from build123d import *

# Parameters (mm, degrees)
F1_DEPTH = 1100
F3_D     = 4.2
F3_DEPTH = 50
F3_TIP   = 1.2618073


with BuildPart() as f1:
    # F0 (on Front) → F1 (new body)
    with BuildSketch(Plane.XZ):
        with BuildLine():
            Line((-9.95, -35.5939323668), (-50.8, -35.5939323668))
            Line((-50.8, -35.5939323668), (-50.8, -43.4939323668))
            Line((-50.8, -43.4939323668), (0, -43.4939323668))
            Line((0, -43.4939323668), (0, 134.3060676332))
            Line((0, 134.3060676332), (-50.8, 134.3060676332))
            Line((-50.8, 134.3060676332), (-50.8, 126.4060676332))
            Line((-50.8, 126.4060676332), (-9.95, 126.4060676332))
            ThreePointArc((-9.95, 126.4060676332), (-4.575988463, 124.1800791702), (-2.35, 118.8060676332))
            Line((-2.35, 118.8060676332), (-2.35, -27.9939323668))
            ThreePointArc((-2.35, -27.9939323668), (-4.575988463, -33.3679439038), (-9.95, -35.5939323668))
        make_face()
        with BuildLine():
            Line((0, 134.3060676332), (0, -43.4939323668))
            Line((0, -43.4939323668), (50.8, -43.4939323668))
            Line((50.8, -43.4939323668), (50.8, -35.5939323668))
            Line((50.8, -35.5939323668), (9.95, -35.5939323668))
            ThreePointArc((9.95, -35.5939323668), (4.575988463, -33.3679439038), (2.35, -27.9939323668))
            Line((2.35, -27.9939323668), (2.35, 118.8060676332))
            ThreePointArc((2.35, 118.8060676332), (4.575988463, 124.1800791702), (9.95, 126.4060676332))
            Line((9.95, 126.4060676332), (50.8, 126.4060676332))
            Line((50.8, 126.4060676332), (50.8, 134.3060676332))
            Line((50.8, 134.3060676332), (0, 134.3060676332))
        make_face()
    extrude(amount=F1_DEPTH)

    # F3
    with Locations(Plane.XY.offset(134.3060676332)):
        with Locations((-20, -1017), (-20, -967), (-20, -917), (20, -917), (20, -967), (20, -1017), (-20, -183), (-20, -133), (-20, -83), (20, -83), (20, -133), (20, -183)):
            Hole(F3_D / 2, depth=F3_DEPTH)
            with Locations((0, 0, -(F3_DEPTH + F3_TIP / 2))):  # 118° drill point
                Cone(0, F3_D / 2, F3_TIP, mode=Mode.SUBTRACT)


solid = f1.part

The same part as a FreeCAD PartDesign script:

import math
import FreeCAD as App
import Part
import Sketcher
from FreeCAD import Vector
Q = App.Units.Quantity

doc = App.newDocument("Part")
body = doc.addObject("PartDesign::Body", "Body")

# Sketch on XZ plane
sketch1 = body.newObject("Sketcher::SketchObject", "Sketch")
sketch1.AttachmentSupport = (doc.getObject("XZ_Plane"), [""])
sketch1.MapMode = "FlatFace"
sketch1.addGeometry(Part.LineSegment(Vector(-10, -36, 0), Vector(-51, -36, 0)), False)
sketch1.addGeometry(Part.LineSegment(Vector(-51, -36, 0), Vector(-51, -43, 0)), False)
sketch1.addGeometry(Part.LineSegment(Vector(-51, -43, 0), Vector(51, -43, 0)), False)
sketch1.addGeometry(Part.LineSegment(Vector(51, -43, 0), Vector(51, -36, 0)), False)
sketch1.addGeometry(Part.LineSegment(Vector(51, -36, 0), Vector(10, -36, 0)), False)
sketch1.addGeometry(Part.ArcOfCircle(Part.Circle(Vector(10, -28, 0), Vector(0, 0, 1), 8), math.radians(180), math.radians(270)), False)
sketch1.addGeometry(Part.LineSegment(Vector(2, -28, 0), Vector(2, 119, 0)), False)
sketch1.addGeometry(Part.ArcOfCircle(Part.Circle(Vector(10, 119, 0), Vector(0, 0, 1), 8), math.radians(90), math.radians(180)), False)
sketch1.addGeometry(Part.LineSegment(Vector(10, 126, 0), Vector(51, 126, 0)), False)
sketch1.addGeometry(Part.LineSegment(Vector(51, 126, 0), Vector(51, 134, 0)), False)
sketch1.addGeometry(Part.LineSegment(Vector(51, 134, 0), Vector(-51, 134, 0)), False)
sketch1.addGeometry(Part.LineSegment(Vector(-51, 134, 0), Vector(-51, 126, 0)), False)
sketch1.addGeometry(Part.LineSegment(Vector(-51, 126, 0), Vector(-10, 126, 0)), False)
sketch1.addGeometry(Part.ArcOfCircle(Part.Circle(Vector(-10, 119, 0), Vector(0, 0, 1), 8), math.radians(0), math.radians(90)), False)
sketch1.addGeometry(Part.LineSegment(Vector(-2, 119, 0), Vector(-2, -28, 0)), False)
sketch1.addGeometry(Part.ArcOfCircle(Part.Circle(Vector(-10, -28, 0), Vector(0, 0, 1), 8), math.radians(-90), math.radians(0)), False)
sketch1.addConstraint(Sketcher.Constraint("Coincident", 0, 2, 1, 1))
sketch1.addConstraint(Sketcher.Constraint("Coincident", 1, 2, 2, 1))
sketch1.addConstraint(Sketcher.Constraint("Coincident", 2, 2, 3, 1))
sketch1.addConstraint(Sketcher.Constraint("Coincident", 3, 2, 4, 1))
sketch1.addConstraint(Sketcher.Constraint("Tangent", 4, 2, 5, 2))
sketch1.addConstraint(Sketcher.Constraint("Tangent", 5, 1, 6, 1))
sketch1.addConstraint(Sketcher.Constraint("Tangent", 6, 2, 7, 2))
sketch1.addConstraint(Sketcher.Constraint("Tangent", 7, 1, 8, 1))
sketch1.addConstraint(Sketcher.Constraint("Coincident", 8, 2, 9, 1))
sketch1.addConstraint(Sketcher.Constraint("Coincident", 9, 2, 10, 1))
sketch1.addConstraint(Sketcher.Constraint("Coincident", 10, 2, 11, 1))
sketch1.addConstraint(Sketcher.Constraint("Coincident", 11, 2, 12, 1))
sketch1.addConstraint(Sketcher.Constraint("Tangent", 12, 2, 13, 2))
sketch1.addConstraint(Sketcher.Constraint("Tangent", 13, 1, 14, 1))
sketch1.addConstraint(Sketcher.Constraint("Tangent", 14, 2, 15, 2))
sketch1.addConstraint(Sketcher.Constraint("Tangent", 15, 1, 0, 1))
sketch1.addConstraint(Sketcher.Constraint("Horizontal", 0))
sketch1.addConstraint(Sketcher.Constraint("Vertical", 1))
sketch1.addConstraint(Sketcher.Constraint("Horizontal", 2))
sketch1.addConstraint(Sketcher.Constraint("Vertical", 3))
sketch1.addConstraint(Sketcher.Constraint("Horizontal", 4))
sketch1.addConstraint(Sketcher.Constraint("Vertical", 6))
sketch1.addConstraint(Sketcher.Constraint("Horizontal", 8))
sketch1.addConstraint(Sketcher.Constraint("Vertical", 9))
sketch1.addConstraint(Sketcher.Constraint("Horizontal", 10))
sketch1.addConstraint(Sketcher.Constraint("Vertical", 11))
sketch1.addConstraint(Sketcher.Constraint("Horizontal", 12))
sketch1.addConstraint(Sketcher.Constraint("Vertical", 14))
sketch1.addConstraint(Sketcher.Constraint("Equal", 5, 7))
sketch1.addConstraint(Sketcher.Constraint("Equal", 7, 13))
sketch1.addConstraint(Sketcher.Constraint("Equal", 13, 15))
sketch1.addConstraint(Sketcher.Constraint("Symmetric", 7, 3, 13, 3, -2))
sketch1.addConstraint(Sketcher.Constraint("Symmetric", 0, 2, 3, 2, -2))
sketch1.addConstraint(Sketcher.Constraint("Vertical", 3, 2, 8, 2))
sketch1.addConstraint(Sketcher.Constraint("Vertical", 1, 2, 10, 2))
sketch1.addConstraint(Sketcher.Constraint("Equal", 3, 9))
sketch1.addConstraint(Sketcher.Constraint("Radius", 5, Q("7.6 mm")))
sketch1.addConstraint(Sketcher.Constraint("DistanceX", 2, 1, 2, 2, Q("101.6 mm")))
sketch1.addConstraint(Sketcher.Constraint("DistanceY", 1, 2, 1, 1, Q("7.9 mm")))
sketch1.addConstraint(Sketcher.Constraint("DistanceY", 6, 1, 6, 2, Q("146.8 mm")))
sketch1.addConstraint(Sketcher.Constraint("DistanceX", 0, 2, 0, 1, Q("40.85 mm")))
sketch1.addConstraint(Sketcher.Constraint("DistanceY", 5, 3, -1, 1, Q("27.993932 mm")))
pad1 = body.newObject("PartDesign::Pad", "Pad")
pad1.Profile = sketch1
pad1.Length = 1100

# Sketch on XY plane
sketch2 = body.newObject("Sketcher::SketchObject", "Sketch001")
sketch2.AttachmentSupport = (doc.getObject("XY_Plane"), [""])
sketch2.MapMode = "FlatFace"
sketch2.AttachmentOffset = App.Placement(Vector(0, 0, 134.306068), App.Rotation())
sketch2.addGeometry(Part.Circle(Vector(-20, -1017, 0), Vector(0, 0, 1), 2.1), False)
sketch2.addGeometry(Part.Circle(Vector(-20, -967, 0), Vector(0, 0, 1), 2.1), False)
sketch2.addGeometry(Part.Circle(Vector(-20, -917, 0), Vector(0, 0, 1), 2.1), False)
sketch2.addGeometry(Part.Circle(Vector(20, -917, 0), Vector(0, 0, 1), 2.1), False)
sketch2.addGeometry(Part.Circle(Vector(20, -967, 0), Vector(0, 0, 1), 2.1), False)
sketch2.addGeometry(Part.Circle(Vector(20, -1017, 0), Vector(0, 0, 1), 2.1), False)
sketch2.addGeometry(Part.Circle(Vector(-20, -183, 0), Vector(0, 0, 1), 2.1), False)
sketch2.addGeometry(Part.Circle(Vector(-20, -133, 0), Vector(0, 0, 1), 2.1), False)
sketch2.addGeometry(Part.Circle(Vector(-20, -83, 0), Vector(0, 0, 1), 2.1), False)
sketch2.addGeometry(Part.Circle(Vector(20, -83, 0), Vector(0, 0, 1), 2.1), False)
sketch2.addGeometry(Part.Circle(Vector(20, -133, 0), Vector(0, 0, 1), 2.1), False)
sketch2.addGeometry(Part.Circle(Vector(20, -183, 0), Vector(0, 0, 1), 2.1), False)
sketch2.addConstraint(Sketcher.Constraint("Equal", 0, 1))
sketch2.addConstraint(Sketcher.Constraint("Equal", 1, 2))
sketch2.addConstraint(Sketcher.Constraint("Equal", 2, 3))
sketch2.addConstraint(Sketcher.Constraint("Equal", 3, 4))
sketch2.addConstraint(Sketcher.Constraint("Equal", 4, 5))
sketch2.addConstraint(Sketcher.Constraint("Equal", 5, 6))
sketch2.addConstraint(Sketcher.Constraint("Equal", 6, 7))
sketch2.addConstraint(Sketcher.Constraint("Equal", 7, 8))
sketch2.addConstraint(Sketcher.Constraint("Equal", 8, 9))
sketch2.addConstraint(Sketcher.Constraint("Equal", 9, 10))
sketch2.addConstraint(Sketcher.Constraint("Equal", 10, 11))
sketch2.addConstraint(Sketcher.Constraint("Symmetric", 2, 3, 3, 3, -2))
sketch2.addConstraint(Sketcher.Constraint("Symmetric", 1, 3, 4, 3, -2))
sketch2.addConstraint(Sketcher.Constraint("Symmetric", 0, 3, 5, 3, -2))
sketch2.addConstraint(Sketcher.Constraint("Symmetric", 8, 3, 9, 3, -2))
sketch2.addConstraint(Sketcher.Constraint("Symmetric", 7, 3, 10, 3, -2))
sketch2.addConstraint(Sketcher.Constraint("Symmetric", 6, 3, 11, 3, -2))
sketch2.addConstraint(Sketcher.Constraint("Vertical", 0, 3, 1, 3))
sketch2.addConstraint(Sketcher.Constraint("Vertical", 1, 3, 2, 3))
sketch2.addConstraint(Sketcher.Constraint("Vertical", 2, 3, 6, 3))
sketch2.addConstraint(Sketcher.Constraint("Vertical", 6, 3, 7, 3))
sketch2.addConstraint(Sketcher.Constraint("Vertical", 7, 3, 8, 3))
sketch2.addConstraint(Sketcher.Constraint("Diameter", 0, Q("4.2 mm")))
sketch2.addConstraint(Sketcher.Constraint("DistanceX", 0, 3, -1, 1, Q("20 mm")))
sketch2.addConstraint(Sketcher.Constraint("DistanceY", 0, 3, -1, 1, Q("1017 mm")))
sketch2.addConstraint(Sketcher.Constraint("DistanceY", 1, 3, -1, 1, Q("967 mm")))
sketch2.addConstraint(Sketcher.Constraint("DistanceY", 2, 3, -1, 1, Q("917 mm")))
sketch2.addConstraint(Sketcher.Constraint("DistanceY", 6, 3, -1, 1, Q("183 mm")))
sketch2.addConstraint(Sketcher.Constraint("DistanceY", 7, 3, -1, 1, Q("133 mm")))
sketch2.addConstraint(Sketcher.Constraint("DistanceY", 8, 3, -1, 1, Q("83 mm")))
doc.recompute()
hole = body.newObject("PartDesign::Hole", "Hole")
hole.Profile = sketch2
hole.ThreadType = "None"
hole.Diameter = 4.2
hole.DepthType = "Dimension"
hole.Depth = 50
hole.DrillPoint = "Angled"
hole.DrillPointAngle = 118

doc.recompute()
